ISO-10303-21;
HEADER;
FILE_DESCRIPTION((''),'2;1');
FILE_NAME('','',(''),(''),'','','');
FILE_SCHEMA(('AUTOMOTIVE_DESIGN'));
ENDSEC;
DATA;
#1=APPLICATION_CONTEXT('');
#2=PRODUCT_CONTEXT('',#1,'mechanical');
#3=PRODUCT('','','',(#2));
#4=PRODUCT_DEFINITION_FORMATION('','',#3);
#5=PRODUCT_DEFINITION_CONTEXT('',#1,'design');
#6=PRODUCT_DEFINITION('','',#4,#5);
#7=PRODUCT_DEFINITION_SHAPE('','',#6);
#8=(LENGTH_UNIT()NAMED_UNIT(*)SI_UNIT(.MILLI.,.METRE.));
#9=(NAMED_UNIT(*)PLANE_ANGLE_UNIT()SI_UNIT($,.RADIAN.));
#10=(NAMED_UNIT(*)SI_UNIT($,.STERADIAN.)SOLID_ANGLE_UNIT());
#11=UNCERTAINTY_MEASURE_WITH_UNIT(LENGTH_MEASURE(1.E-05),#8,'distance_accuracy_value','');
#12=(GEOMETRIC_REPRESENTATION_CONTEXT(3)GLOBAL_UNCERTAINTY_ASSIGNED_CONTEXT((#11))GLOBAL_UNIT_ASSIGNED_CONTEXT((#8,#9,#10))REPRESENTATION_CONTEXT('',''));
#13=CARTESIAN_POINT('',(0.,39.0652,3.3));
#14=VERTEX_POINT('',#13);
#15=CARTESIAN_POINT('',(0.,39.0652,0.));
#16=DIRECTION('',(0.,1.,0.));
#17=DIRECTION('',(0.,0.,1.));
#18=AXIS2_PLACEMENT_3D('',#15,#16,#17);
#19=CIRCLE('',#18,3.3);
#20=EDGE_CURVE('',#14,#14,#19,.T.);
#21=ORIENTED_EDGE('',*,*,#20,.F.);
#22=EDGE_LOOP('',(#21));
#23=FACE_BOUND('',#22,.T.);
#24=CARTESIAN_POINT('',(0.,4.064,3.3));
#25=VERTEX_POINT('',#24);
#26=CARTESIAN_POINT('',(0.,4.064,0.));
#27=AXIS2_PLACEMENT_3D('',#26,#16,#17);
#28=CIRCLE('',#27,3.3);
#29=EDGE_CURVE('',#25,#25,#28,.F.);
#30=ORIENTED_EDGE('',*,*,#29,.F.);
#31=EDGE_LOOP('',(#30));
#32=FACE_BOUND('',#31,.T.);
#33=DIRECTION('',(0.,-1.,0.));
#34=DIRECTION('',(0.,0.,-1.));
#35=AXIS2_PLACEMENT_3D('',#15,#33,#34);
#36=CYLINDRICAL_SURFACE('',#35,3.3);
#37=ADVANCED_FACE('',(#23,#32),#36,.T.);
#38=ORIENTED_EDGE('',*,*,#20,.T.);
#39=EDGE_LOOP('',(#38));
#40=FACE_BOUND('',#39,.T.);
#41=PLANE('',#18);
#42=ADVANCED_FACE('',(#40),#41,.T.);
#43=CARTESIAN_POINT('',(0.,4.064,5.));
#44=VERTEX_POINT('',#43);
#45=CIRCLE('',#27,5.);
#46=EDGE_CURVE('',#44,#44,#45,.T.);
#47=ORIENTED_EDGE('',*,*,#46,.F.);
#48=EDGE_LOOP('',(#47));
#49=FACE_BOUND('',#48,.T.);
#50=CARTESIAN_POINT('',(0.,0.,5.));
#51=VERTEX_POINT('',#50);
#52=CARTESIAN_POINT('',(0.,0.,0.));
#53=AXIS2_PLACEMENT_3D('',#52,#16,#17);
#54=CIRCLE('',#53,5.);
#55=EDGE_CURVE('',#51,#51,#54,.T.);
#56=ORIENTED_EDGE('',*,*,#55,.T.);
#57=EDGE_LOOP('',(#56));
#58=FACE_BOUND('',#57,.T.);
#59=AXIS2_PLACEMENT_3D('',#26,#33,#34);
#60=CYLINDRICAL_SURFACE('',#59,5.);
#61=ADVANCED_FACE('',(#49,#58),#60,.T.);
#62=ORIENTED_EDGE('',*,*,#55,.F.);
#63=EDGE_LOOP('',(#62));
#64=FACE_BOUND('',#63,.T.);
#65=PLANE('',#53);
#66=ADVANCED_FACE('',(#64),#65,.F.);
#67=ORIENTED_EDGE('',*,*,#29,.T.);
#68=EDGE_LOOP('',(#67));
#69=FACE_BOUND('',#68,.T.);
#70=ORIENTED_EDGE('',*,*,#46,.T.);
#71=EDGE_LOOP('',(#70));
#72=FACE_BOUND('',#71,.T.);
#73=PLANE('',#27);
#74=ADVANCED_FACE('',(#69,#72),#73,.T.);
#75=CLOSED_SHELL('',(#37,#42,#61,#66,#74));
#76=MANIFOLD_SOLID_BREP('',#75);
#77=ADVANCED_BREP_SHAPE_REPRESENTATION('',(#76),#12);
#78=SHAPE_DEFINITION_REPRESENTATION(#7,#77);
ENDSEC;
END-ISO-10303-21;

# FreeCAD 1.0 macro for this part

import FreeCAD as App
import Part
import Sketcher

doc = App.newDocument("Part")
body = doc.addObject("PartDesign::Body", "Body")

# Sketch on XZ plane
sketch1 = body.newObject("Sketcher::SketchObject", "Sketch")
sketch1.AttachmentSupport = (doc.getObject("XZ_Plane"), [""])
sketch1.MapMode = "FlatFace"
sketch1.addGeometry(Part.Circle(App.Vector(0, 0, 0), App.Vector(0, 0, 1), 5), False)
sketch1.addConstraint(Sketcher.Constraint("Coincident", 0, 3, -1, 1))
sketch1.addConstraint(Sketcher.Constraint("Diameter", 0, 10.0))
pad1 = body.newObject("PartDesign::Pad", "Pad")
pad1.Profile = sketch1
pad1.Length = 4.064
pad1.Reversed = True

# Sketch on XZ plane
sketch2 = body.newObject("Sketcher::SketchObject", "Sketch001")
sketch2.AttachmentSupport = (doc.getObject("XZ_Plane"), [""])
sketch2.MapMode = "FlatFace"
sketch2.addGeometry(Part.Circle(App.Vector(0, 0, 0), App.Vector(0, 0, 1), 3.3), False)
sketch2.addConstraint(Sketcher.Constraint("Coincident", 0, 3, -1, 1))
sketch2.addConstraint(Sketcher.Constraint("Diameter", 0, 6.6))
pad2 = body.newObject("PartDesign::Pad", "Pad001")
pad2.Profile = sketch2
pad2.Length = 39.0652
pad2.Reversed = True

doc.recompute()
